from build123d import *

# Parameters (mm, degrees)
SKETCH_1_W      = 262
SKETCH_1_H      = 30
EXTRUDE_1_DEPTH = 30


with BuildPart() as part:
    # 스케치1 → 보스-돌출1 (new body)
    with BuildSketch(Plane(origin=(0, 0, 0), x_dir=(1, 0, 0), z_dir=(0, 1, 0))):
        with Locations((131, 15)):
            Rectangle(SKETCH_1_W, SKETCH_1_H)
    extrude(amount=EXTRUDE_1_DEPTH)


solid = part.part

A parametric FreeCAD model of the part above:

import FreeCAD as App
import Part
import Sketcher
Q = App.Units.Quantity


def add_polygon(sketch, points):
    """Adds a closed chain of lines whose ends are joined by coincident constraints."""
    first, n = sketch.GeometryCount, len(points)
    for a, b in zip(points, points[1:] + points[:1]):
        sketch.addGeometry(Part.LineSegment(App.Vector(*a, 0), App.Vector(*b, 0)), False)
    for i in range(n):
        sketch.addConstraint(Sketcher.Constraint("Coincident", first + i, 2, first + (i + 1) % n, 1))

doc = App.newDocument("Part")
body = doc.addObject("PartDesign::Body", "Body")

sketch1 = body.newObject("Sketcher::SketchObject", "Sketch")
sketch1.AttachmentSupport = (doc.getObject("XZ_Plane"), [""])
sketch1.MapMode = "FlatFace"
add_polygon(sketch1, [(0, -30), (0, 0), (262, 0), (262, -30)])
sketch1.addConstraint([
    Sketcher.Constraint("Vertical", 0),
    Sketcher.Constraint("Horizontal", 1),
    Sketcher.Constraint("Vertical", 2),
    Sketcher.Constraint("Horizontal", 3),
    Sketcher.Constraint("Coincident", 0, 2, -1, 1),
    Sketcher.Constraint("DistanceX", 1, 1, 1, 2, Q("262 mm")),
    Sketcher.Constraint("DistanceY", 0, 1, 0, 2, Q("30 mm")),
])
pad1 = body.newObject("PartDesign::Pad", "Pad")
pad1.Profile = sketch1
pad1.Length = 30
pad1.Reversed = True

doc.recompute()
